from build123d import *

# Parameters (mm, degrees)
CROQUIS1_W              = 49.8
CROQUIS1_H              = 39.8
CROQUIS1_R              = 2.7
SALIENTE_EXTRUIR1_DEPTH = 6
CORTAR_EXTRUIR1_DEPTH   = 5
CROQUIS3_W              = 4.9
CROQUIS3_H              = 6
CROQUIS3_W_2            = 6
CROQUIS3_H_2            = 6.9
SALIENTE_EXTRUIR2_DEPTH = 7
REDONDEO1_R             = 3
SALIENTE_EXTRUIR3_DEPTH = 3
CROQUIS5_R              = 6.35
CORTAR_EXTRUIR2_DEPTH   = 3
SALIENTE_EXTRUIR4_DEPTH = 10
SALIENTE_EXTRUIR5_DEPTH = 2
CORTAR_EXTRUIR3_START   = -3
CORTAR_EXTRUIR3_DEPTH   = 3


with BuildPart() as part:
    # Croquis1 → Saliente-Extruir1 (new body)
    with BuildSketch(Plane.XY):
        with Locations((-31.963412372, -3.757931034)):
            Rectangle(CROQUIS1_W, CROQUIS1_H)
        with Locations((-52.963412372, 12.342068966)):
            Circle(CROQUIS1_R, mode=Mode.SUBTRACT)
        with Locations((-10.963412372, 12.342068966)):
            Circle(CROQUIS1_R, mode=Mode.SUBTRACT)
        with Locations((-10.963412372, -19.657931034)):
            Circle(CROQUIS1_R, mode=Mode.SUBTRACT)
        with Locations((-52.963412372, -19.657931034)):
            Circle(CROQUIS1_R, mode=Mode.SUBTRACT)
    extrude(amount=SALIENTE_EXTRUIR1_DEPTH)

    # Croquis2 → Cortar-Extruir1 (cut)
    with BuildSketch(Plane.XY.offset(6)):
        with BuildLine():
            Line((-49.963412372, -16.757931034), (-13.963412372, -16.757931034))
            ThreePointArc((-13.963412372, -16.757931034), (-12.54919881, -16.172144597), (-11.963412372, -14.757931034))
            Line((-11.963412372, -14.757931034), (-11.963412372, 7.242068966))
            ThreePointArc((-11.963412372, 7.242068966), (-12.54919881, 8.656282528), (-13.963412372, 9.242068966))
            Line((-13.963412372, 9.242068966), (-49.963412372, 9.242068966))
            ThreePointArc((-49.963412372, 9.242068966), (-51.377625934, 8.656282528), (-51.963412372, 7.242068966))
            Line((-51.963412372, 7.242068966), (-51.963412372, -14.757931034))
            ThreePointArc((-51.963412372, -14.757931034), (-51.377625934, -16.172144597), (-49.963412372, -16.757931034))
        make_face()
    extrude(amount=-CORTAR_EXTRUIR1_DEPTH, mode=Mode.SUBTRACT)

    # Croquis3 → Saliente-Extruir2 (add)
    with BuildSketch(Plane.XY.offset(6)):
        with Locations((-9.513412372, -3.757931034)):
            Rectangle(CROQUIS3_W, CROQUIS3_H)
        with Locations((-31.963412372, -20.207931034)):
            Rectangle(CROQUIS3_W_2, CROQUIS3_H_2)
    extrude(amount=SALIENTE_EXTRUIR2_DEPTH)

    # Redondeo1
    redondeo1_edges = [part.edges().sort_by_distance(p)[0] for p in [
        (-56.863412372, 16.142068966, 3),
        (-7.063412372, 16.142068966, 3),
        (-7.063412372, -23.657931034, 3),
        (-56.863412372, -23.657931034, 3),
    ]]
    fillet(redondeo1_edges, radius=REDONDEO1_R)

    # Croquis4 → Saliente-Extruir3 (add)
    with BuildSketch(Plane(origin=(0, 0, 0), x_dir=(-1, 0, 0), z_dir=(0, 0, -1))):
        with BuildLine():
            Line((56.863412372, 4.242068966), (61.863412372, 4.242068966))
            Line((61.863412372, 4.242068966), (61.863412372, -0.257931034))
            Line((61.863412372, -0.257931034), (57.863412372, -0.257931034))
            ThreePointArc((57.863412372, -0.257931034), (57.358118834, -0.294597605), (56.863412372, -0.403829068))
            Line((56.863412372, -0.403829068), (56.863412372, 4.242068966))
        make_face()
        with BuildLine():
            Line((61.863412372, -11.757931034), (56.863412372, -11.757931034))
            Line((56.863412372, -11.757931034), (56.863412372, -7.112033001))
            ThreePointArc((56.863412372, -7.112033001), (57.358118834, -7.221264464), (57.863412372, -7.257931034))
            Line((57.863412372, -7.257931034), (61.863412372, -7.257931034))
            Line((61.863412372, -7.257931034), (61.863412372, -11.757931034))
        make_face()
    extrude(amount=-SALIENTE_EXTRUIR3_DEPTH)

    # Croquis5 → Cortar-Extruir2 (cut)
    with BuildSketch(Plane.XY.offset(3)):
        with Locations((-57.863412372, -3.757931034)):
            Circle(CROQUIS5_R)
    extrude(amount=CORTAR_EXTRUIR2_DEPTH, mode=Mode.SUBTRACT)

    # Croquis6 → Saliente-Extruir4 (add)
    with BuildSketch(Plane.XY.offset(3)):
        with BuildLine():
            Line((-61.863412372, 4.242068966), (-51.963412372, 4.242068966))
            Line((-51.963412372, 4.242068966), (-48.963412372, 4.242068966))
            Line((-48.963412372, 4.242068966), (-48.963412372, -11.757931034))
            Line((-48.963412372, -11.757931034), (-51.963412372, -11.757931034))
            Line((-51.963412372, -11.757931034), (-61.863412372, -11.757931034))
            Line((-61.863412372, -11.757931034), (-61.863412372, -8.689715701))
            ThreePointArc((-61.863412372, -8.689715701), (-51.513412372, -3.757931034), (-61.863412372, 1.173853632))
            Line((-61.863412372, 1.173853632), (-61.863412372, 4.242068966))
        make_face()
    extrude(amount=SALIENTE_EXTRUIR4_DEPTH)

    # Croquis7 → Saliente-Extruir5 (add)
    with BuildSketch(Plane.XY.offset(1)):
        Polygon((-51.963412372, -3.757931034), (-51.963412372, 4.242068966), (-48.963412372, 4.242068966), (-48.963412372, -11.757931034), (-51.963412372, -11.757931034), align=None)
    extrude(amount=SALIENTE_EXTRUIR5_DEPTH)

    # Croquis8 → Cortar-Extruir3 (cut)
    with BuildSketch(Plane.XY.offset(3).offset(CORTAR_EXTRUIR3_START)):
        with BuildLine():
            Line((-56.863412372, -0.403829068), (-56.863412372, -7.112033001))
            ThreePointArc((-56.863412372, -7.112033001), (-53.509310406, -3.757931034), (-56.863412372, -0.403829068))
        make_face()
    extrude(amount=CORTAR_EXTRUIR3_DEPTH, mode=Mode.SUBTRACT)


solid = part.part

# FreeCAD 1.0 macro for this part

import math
import FreeCAD as App
import Part
import Sketcher
from FreeCAD import Vector


def edges_at(feature, points):
    """Names of the edges that pass closest to the given points."""
    edges = feature.Shape.Edges
    near = lambda p: min(range(len(edges)), key=lambda i: edges[i].distToShape(Part.Vertex(*p))[0])
    return sorted({f"Edge{near(p) + 1}" for p in points})


def add_polygon(sketch, points):
    """Adds a closed chain of lines whose ends are joined by coincident constraints."""
    first, n = sketch.GeometryCount, len(points)
    for a, b in zip(points, points[1:] + points[:1]):
        sketch.addGeometry(Part.LineSegment(App.Vector(*a, 0), App.Vector(*b, 0)), False)
    for i in range(n):
        sketch.addConstraint(Sketcher.Constraint("Coincident", first + i, 2, first + (i + 1) % n, 1))

doc = App.newDocument("Part")
body = doc.addObject("PartDesign::Body", "Body")

# Sketch on XY plane
sketch1 = body.newObject("Sketcher::SketchObject", "Sketch")
sketch1.AttachmentSupport = (doc.getObject("XY_Plane"), [""])
sketch1.MapMode = "FlatFace"
add_polygon(sketch1, [(-56.9, 16.1), (-56.9, -23.7), (-7.1, -23.7), (-7.1, 16.1)])  # lines 0-3
sketch1.addGeometry(Part.Circle(Vector(-53, -19.7, 0), Vector(0, 0, 1), 2.7), False)  # 4
sketch1.addGeometry(Part.Circle(Vector(-11, -19.7, 0), Vector(0, 0, 1), 2.7), False)  # 5
sketch1.addGeometry(Part.Circle(Vector(-53, 12.3, 0), Vector(0, 0, 1), 2.7), False)  # 6
sketch1.addGeometry(Part.Circle(Vector(-11, 12.3, 0), Vector(0, 0, 1), 2.7), False)  # 7
sketch1.addConstraint([
    Sketcher.Constraint("Vertical", 0),
    Sketcher.Constraint("Horizontal", 1),
    Sketcher.Constraint("Vertical", 2),
    Sketcher.Constraint("Horizontal", 3),
    Sketcher.Constraint("Equal", 4, 5),
    Sketcher.Constraint("Equal", 5, 6),
    Sketcher.Constraint("Equal", 6, 7),
    Sketcher.Constraint("Horizontal", 4, 3, 5, 3),
    Sketcher.Constraint("Horizontal", 6, 3, 7, 3),
    Sketcher.Constraint("Vertical", 4, 3, 6, 3),
    Sketcher.Constraint("Vertical", 5, 3, 7, 3),
    Sketcher.Constraint("Diameter", 4, 5.4),
    Sketcher.Constraint("DistanceX", 1, 1, 1, 2, 49.8),
    Sketcher.Constraint("DistanceY", 0, 2, 0, 1, 39.8),
    Sketcher.Constraint("DistanceX", 4, 3, 5, 3, 42.0),
    Sketcher.Constraint("DistanceY", 4, 3, 6, 3, 32.0),
    Sketcher.Constraint("DistanceY", 0, 2, 4, 3, 4.0),
    Sketcher.Constraint("DistanceX", 0, 2, 4, 3, 3.9),
    Sketcher.Constraint("DistanceY", 4, 3, -1, 1, 19.657931),
    Sketcher.Constraint("DistanceX", 4, 3, -1, 1, 52.963412),
])
pad1 = body.newObject("PartDesign::Pad", "Pad")
pad1.Profile = sketch1
pad1.Length = 6

# Sketch on XY plane
sketch2 = body.newObject("Sketcher::SketchObject", "Sketch001")
sketch2.AttachmentSupport = (doc.getObject("XY_Plane"), [""])
sketch2.MapMode = "FlatFace"
sketch2.AttachmentOffset = App.Placement(Vector(0, 0, 6), App.Rotation())
sketch2.addGeometry([
    Part.LineSegment(Vector(-50, -16.8, 0), Vector(-14, -16.8, 0)),  # 0
    Part.ArcOfCircle(Part.Circle(Vector(-14, -14.8, 0), Vector(0, 0, 1), 2), math.radians(-90), math.radians(0)),  # 1
    Part.LineSegment(Vector(-12, -14.8, 0), Vector(-12, 7.2, 0)),  # 2
    Part.ArcOfCircle(Part.Circle(Vector(-14, 7.2, 0), Vector(0, 0, 1), 2), math.radians(0), math.radians(90)),  # 3
    Part.LineSegment(Vector(-14, 9.2, 0), Vector(-50, 9.2, 0)),  # 4
    Part.ArcOfCircle(Part.Circle(Vector(-50, 7.2, 0), Vector(0, 0, 1), 2), math.radians(90), math.radians(180)),  # 5
    Part.LineSegment(Vector(-52, 7.2, 0), Vector(-52, -14.8, 0)),  # 6
    Part.ArcOfCircle(Part.Circle(Vector(-50, -14.8, 0), Vector(0, 0, 1), 2), math.radians(180), math.radians(270)),  # 7
], False)
sketch2.addConstraint([
    Sketcher.Constraint("Tangent", 0, 2, 1, 1),
    Sketcher.Constraint("Tangent", 1, 2, 2, 1),
    Sketcher.Constraint("Tangent", 2, 2, 3, 1),
    Sketcher.Constraint("Tangent", 3, 2, 4, 1),
    Sketcher.Constraint("Tangent", 4, 2, 5, 1),
    Sketcher.Constraint("Tangent", 5, 2, 6, 1),
    Sketcher.Constraint("Tangent", 6, 2, 7, 1),
    Sketcher.Constraint("Tangent", 7, 2, 0, 1),
    Sketcher.Constraint("Horizontal", 0),
    Sketcher.Constraint("Vertical", 2),
    Sketcher.Constraint("Horizontal", 4),
    Sketcher.Constraint("Vertical", 6),
    Sketcher.Constraint("Equal", 1, 3),
    Sketcher.Constraint("Equal", 3, 5),
    Sketcher.Constraint("Equal", 5, 7),
    Sketcher.Constraint("Radius", 1, 2.0),
    Sketcher.Constraint("DistanceX", 0, 1, 0, 2, 36.0),
    Sketcher.Constraint("DistanceY", 2, 1, 2, 2, 22.0),
    Sketcher.Constraint("DistanceY", 1, 3, -1, 1, 14.757931),
    Sketcher.Constraint("DistanceX", 1, 3, -1, 1, 13.963412),
])
pocket1 = body.newObject("PartDesign::Pocket", "Pocket")
pocket1.Profile = sketch2
pocket1.Length = 5

# Sketch on XY plane
sketch3 = body.newObject("Sketcher::SketchObject", "Sketch002")
sketch3.AttachmentSupport = (doc.getObject("XY_Plane"), [""])
sketch3.MapMode = "FlatFace"
sketch3.AttachmentOffset = App.Placement(Vector(0, 0, 6), App.Rotation())
add_polygon(sketch3, [(-12, -0.8), (-12, -6.8), (-7.1, -6.8), (-7.1, -0.8)])  # lines 0-3
add_polygon(sketch3, [(-35, -16.8), (-35, -23.7), (-29, -23.7), (-29, -16.8)])  # lines 4-7
sketch3.addConstraint([
    Sketcher.Constraint("Vertical", 0),
    Sketcher.Constraint("Horizontal", 1),
    Sketcher.Constraint("Vertical", 2),
    Sketcher.Constraint("Horizontal", 3),
    Sketcher.Constraint("Vertical", 4),
    Sketcher.Constraint("Horizontal", 5),
    Sketcher.Constraint("Vertical", 6),
    Sketcher.Constraint("Horizontal", 7),
    Sketcher.Constraint("Equal", 7, 0),
    Sketcher.Constraint("DistanceX", 5, 1, 5, 2, 6.0),
    Sketcher.Constraint("DistanceX", 1, 1, 1, 2, 4.9),
    Sketcher.Constraint("DistanceY", 4, 2, 4, 1, 6.9),
    Sketcher.Constraint("DistanceX", 4, 2, 0, 2, 23.0),
    Sketcher.Constraint("DistanceY", 6, 2, 0, 2, 10.0),
    Sketcher.Constraint("DistanceY", 0, 2, -1, 1, 6.757931),
    Sketcher.Constraint("DistanceX", 0, 2, -1, 1, 11.963412),
])
pad2 = body.newObject("PartDesign::Pad", "Pad001")
pad2.Profile = sketch3
pad2.Length = 7
doc.recompute()

fillet = body.newObject("PartDesign::Fillet", "Fillet")
fillet.Base = (pad2, edges_at(pad2, [
    (-56.863, 16.142, 3),
    (-7.063, 16.142, 3),
    (-7.063, -23.658, 3),
    (-56.863, -23.658, 3),
]))
fillet.Radius = 3

# Sketch on XY plane
sketch4 = body.newObject("Sketcher::SketchObject", "Sketch003")
sketch4.AttachmentSupport = (doc.getObject("XY_Plane"), [""])
sketch4.MapMode = "FlatFace"
sketch4.addGeometry([
    Part.LineSegment(Vector(-61.9, 4.2, 0), Vector(-56.9, 4.2, 0)),  # 0
    Part.LineSegment(Vector(-56.9, 4.2, 0), Vector(-56.9, -0.4, 0)),  # 1
    Part.ArcOfCircle(Part.Circle(Vector(-57.9, -3.8, 0), Vector(0, 0, 1), 3.5), math.radians(73.4), math.radians(90)),  # 2
    Part.LineSegment(Vector(-57.9, -0.3, 0), Vector(-61.9, -0.3, 0)),  # 3
    Part.LineSegment(Vector(-61.9, -0.3, 0), Vector(-61.9, 4.2, 0)),  # 4
    Part.LineSegment(Vector(-56.9, -11.8, 0), Vector(-61.9, -11.8, 0)),  # 5
    Part.LineSegment(Vector(-61.9, -11.8, 0), Vector(-61.9, -7.3, 0)),  # 6
    Part.LineSegment(Vector(-61.9, -7.3, 0), Vector(-57.9, -7.3, 0)),  # 7
    Part.ArcOfCircle(Part.Circle(Vector(-57.9, -3.8, 0), Vector(0, 0, 1), 3.5), math.radians(-90), math.radians(-73.4)),  # 8
    Part.LineSegment(Vector(-56.9, -7.1, 0), Vector(-56.9, -11.8, 0)),  # 9
], False)
sketch4.addConstraint([
    Sketcher.Constraint("Coincident", 0, 2, 1, 1),
    Sketcher.Constraint("Coincident", 1, 2, 2, 1),
    Sketcher.Constraint("Tangent", 2, 2, 3, 1),
    Sketcher.Constraint("Coincident", 3, 2, 4, 1),
    Sketcher.Constraint("Coincident", 4, 2, 0, 1),
    Sketcher.Constraint("Coincident", 5, 2, 6, 1),
    Sketcher.Constraint("Coincident", 6, 2, 7, 1),
    Sketcher.Constraint("Tangent", 7, 2, 8, 1),
    Sketcher.Constraint("Coincident", 8, 2, 9, 1),
    Sketcher.Constraint("Coincident", 9, 2, 5, 1),
    Sketcher.Constraint("Horizontal", 0),
    Sketcher.Constraint("Vertical", 1),
    Sketcher.Constraint("Horizontal", 3),
    Sketcher.Constraint("Vertical", 4),
    Sketcher.Constraint("Horizontal", 5),
    Sketcher.Constraint("Vertical", 6),
    Sketcher.Constraint("Horizontal", 7),
    Sketcher.Constraint("Vertical", 9),
    Sketcher.Constraint("Coincident", 8, 3, 2, 3),
    Sketcher.Constraint("Equal", 2, 8),
    Sketcher.Constraint("Vertical", 4, 2, 5, 2),
    Sketcher.Constraint("Vertical", 1, 2, 8, 2),
    Sketcher.Constraint("Equal", 4, 6),
    Sketcher.Constraint("Radius", 2, 3.5),
    Sketcher.Constraint("DistanceX", 0, 1, 0, 2, 5.0),
    Sketcher.Constraint("DistanceX", 3, 2, 3, 1, 4.0),
    Sketcher.Constraint("DistanceY", 4, 1, 4, 2, 4.5),
    Sketcher.Constraint("DistanceY", 2, 3, -1, 1, 3.757931),
    Sketcher.Constraint("DistanceX", 2, 3, -1, 1, 57.863412),
])
pad3 = body.newObject("PartDesign::Pad", "Pad002")
pad3.Profile = sketch4
pad3.Length = 3

# Sketch on XY plane
sketch5 = body.newObject("Sketcher::SketchObject", "Sketch004")
sketch5.AttachmentSupport = (doc.getObject("XY_Plane"), [""])
sketch5.MapMode = "FlatFace"
sketch5.AttachmentOffset = App.Placement(Vector(0, 0, 3), App.Rotation())
sketch5.addGeometry(Part.Circle(Vector(-58, -4, 0), Vector(0, 0, 1), 6), False)
sketch5.addConstraint([
    Sketcher.Constraint("Diameter", 0, 12.7),
    Sketcher.Constraint("DistanceY", 0, 3, -1, 1, 3.757931),
    Sketcher.Constraint("DistanceX", 0, 3, -1, 1, 57.863412),
])
pocket2 = body.newObject("PartDesign::Pocket", "Pocket001")
pocket2.Profile = sketch5
pocket2.Length = 3
pocket2.Reversed = True

# Sketch on XY plane
sketch6 = body.newObject("Sketcher::SketchObject", "Sketch005")
sketch6.AttachmentSupport = (doc.getObject("XY_Plane"), [""])
sketch6.MapMode = "FlatFace"
sketch6.AttachmentOffset = App.Placement(Vector(0, 0, 3), App.Rotation())
sketch6.addGeometry([
    Part.LineSegment(Vector(-49, 4.2, 0), Vector(-61.9, 4.2, 0)),  # 0
    Part.LineSegment(Vector(-61.9, 4.2, 0), Vector(-61.9, 1.2, 0)),  # 1
    Part.ArcOfCircle(Part.Circle(Vector(-57.9, -3.8, 0), Vector(0, 0, 1), 6.3), math.radians(-129), math.radians(129)),  # 2
    Part.LineSegment(Vector(-61.9, -8.7, 0), Vector(-61.9, -11.8, 0)),  # 3
    Part.LineSegment(Vector(-61.9, -11.8, 0), Vector(-49, -11.8, 0)),  # 4
    Part.LineSegment(Vector(-49, -11.8, 0), Vector(-49, 4.2, 0)),  # 5
], False)
sketch6.addConstraint([
    Sketcher.Constraint("Coincident", 0, 2, 1, 1),
    Sketcher.Constraint("Coincident", 1, 2, 2, 2),
    Sketcher.Constraint("Coincident", 2, 1, 3, 1),
    Sketcher.Constraint("Coincident", 3, 2, 4, 1),
    Sketcher.Constraint("Coincident", 4, 2, 5, 1),
    Sketcher.Constraint("Coincident", 5, 2, 0, 1),
    Sketcher.Constraint("Horizontal", 0),
    Sketcher.Constraint("Vertical", 1),
    Sketcher.Constraint("Vertical", 3),
    Sketcher.Constraint("Horizontal", 4),
    Sketcher.Constraint("Vertical", 5),
    Sketcher.Constraint("Vertical", 1, 2, 2, 1),
    Sketcher.Constraint("Equal", 1, 3),
    Sketcher.Constraint("DistanceY", 5, 1, 5, 2, 16.0),
    Sketcher.Constraint("Radius", 2, 6.35),
    Sketcher.Constraint("DistanceX", 0, 2, 0, 1, 12.9),
    Sketcher.Constraint("DistanceX", 0, 2, 2, 3, 4.0),
    Sketcher.Constraint("DistanceY", 2, 3, -1, 1, 3.757931),
    Sketcher.Constraint("DistanceX", 2, 3, -1, 1, 57.863412),
])
pad4 = body.newObject("PartDesign::Pad", "Pad003")
pad4.Profile = sketch6
pad4.Length = 10

# Sketch on XY plane
sketch7 = body.newObject("Sketcher::SketchObject", "Sketch006")
sketch7.AttachmentSupport = (doc.getObject("XY_Plane"), [""])
sketch7.MapMode = "FlatFace"
sketch7.AttachmentOffset = App.Placement(Vector(0, 0, 1), App.Rotation())
add_polygon(sketch7, [(-52, 4.2), (-52, -11.8), (-49, -11.8), (-49, 4.2)])  # lines 0-3
sketch7.addConstraint([
    Sketcher.Constraint("Vertical", 0),
    Sketcher.Constraint("Horizontal", 1),
    Sketcher.Constraint("Vertical", 2),
    Sketcher.Constraint("Horizontal", 3),
    Sketcher.Constraint("DistanceX", 1, 1, 1, 2, 3.0),
    Sketcher.Constraint("DistanceY", 0, 2, 0, 1, 16.0),
    Sketcher.Constraint("DistanceY", 0, 2, -1, 1, 11.757931),
    Sketcher.Constraint("DistanceX", 0, 2, -1, 1, 51.963412),
])
pad5 = body.newObject("PartDesign::Pad", "Pad004")
pad5.Profile = sketch7
pad5.Length = 2

# Sketch on XY plane
sketch8 = body.newObject("Sketcher::SketchObject", "Sketch007")
sketch8.AttachmentSupport = (doc.getObject("XY_Plane"), [""])
sketch8.MapMode = "FlatFace"
sketch8.addGeometry([
    Part.LineSegment(Vector(-56.9, -0.4, 0), Vector(-56.9, -7.1, 0)),
    Part.ArcOfCircle(Part.Circle(Vector(-56.9, -3.8, 0), Vector(0, 0, 1), 3.4), math.radians(-90), math.radians(90)),
], False)
sketch8.addConstraint([
    Sketcher.Constraint("Coincident", 0, 1, 1, 2),
    Sketcher.Constraint("Coincident", 1, 1, 0, 2),
    Sketcher.Constraint("Vertical", 0),
    Sketcher.Constraint("Vertical", 1, 3, 0, 1),
    Sketcher.Constraint("Radius", 1, 3.354102),
    Sketcher.Constraint("DistanceY", 1, 3, -1, 1, 3.757931),
    Sketcher.Constraint("DistanceX", 1, 3, -1, 1, 56.863412),
])
pocket3 = body.newObject("PartDesign::Pocket", "Pocket002")
pocket3.Profile = sketch8
pocket3.Length = 3
pocket3.Reversed = True

doc.recompute()
